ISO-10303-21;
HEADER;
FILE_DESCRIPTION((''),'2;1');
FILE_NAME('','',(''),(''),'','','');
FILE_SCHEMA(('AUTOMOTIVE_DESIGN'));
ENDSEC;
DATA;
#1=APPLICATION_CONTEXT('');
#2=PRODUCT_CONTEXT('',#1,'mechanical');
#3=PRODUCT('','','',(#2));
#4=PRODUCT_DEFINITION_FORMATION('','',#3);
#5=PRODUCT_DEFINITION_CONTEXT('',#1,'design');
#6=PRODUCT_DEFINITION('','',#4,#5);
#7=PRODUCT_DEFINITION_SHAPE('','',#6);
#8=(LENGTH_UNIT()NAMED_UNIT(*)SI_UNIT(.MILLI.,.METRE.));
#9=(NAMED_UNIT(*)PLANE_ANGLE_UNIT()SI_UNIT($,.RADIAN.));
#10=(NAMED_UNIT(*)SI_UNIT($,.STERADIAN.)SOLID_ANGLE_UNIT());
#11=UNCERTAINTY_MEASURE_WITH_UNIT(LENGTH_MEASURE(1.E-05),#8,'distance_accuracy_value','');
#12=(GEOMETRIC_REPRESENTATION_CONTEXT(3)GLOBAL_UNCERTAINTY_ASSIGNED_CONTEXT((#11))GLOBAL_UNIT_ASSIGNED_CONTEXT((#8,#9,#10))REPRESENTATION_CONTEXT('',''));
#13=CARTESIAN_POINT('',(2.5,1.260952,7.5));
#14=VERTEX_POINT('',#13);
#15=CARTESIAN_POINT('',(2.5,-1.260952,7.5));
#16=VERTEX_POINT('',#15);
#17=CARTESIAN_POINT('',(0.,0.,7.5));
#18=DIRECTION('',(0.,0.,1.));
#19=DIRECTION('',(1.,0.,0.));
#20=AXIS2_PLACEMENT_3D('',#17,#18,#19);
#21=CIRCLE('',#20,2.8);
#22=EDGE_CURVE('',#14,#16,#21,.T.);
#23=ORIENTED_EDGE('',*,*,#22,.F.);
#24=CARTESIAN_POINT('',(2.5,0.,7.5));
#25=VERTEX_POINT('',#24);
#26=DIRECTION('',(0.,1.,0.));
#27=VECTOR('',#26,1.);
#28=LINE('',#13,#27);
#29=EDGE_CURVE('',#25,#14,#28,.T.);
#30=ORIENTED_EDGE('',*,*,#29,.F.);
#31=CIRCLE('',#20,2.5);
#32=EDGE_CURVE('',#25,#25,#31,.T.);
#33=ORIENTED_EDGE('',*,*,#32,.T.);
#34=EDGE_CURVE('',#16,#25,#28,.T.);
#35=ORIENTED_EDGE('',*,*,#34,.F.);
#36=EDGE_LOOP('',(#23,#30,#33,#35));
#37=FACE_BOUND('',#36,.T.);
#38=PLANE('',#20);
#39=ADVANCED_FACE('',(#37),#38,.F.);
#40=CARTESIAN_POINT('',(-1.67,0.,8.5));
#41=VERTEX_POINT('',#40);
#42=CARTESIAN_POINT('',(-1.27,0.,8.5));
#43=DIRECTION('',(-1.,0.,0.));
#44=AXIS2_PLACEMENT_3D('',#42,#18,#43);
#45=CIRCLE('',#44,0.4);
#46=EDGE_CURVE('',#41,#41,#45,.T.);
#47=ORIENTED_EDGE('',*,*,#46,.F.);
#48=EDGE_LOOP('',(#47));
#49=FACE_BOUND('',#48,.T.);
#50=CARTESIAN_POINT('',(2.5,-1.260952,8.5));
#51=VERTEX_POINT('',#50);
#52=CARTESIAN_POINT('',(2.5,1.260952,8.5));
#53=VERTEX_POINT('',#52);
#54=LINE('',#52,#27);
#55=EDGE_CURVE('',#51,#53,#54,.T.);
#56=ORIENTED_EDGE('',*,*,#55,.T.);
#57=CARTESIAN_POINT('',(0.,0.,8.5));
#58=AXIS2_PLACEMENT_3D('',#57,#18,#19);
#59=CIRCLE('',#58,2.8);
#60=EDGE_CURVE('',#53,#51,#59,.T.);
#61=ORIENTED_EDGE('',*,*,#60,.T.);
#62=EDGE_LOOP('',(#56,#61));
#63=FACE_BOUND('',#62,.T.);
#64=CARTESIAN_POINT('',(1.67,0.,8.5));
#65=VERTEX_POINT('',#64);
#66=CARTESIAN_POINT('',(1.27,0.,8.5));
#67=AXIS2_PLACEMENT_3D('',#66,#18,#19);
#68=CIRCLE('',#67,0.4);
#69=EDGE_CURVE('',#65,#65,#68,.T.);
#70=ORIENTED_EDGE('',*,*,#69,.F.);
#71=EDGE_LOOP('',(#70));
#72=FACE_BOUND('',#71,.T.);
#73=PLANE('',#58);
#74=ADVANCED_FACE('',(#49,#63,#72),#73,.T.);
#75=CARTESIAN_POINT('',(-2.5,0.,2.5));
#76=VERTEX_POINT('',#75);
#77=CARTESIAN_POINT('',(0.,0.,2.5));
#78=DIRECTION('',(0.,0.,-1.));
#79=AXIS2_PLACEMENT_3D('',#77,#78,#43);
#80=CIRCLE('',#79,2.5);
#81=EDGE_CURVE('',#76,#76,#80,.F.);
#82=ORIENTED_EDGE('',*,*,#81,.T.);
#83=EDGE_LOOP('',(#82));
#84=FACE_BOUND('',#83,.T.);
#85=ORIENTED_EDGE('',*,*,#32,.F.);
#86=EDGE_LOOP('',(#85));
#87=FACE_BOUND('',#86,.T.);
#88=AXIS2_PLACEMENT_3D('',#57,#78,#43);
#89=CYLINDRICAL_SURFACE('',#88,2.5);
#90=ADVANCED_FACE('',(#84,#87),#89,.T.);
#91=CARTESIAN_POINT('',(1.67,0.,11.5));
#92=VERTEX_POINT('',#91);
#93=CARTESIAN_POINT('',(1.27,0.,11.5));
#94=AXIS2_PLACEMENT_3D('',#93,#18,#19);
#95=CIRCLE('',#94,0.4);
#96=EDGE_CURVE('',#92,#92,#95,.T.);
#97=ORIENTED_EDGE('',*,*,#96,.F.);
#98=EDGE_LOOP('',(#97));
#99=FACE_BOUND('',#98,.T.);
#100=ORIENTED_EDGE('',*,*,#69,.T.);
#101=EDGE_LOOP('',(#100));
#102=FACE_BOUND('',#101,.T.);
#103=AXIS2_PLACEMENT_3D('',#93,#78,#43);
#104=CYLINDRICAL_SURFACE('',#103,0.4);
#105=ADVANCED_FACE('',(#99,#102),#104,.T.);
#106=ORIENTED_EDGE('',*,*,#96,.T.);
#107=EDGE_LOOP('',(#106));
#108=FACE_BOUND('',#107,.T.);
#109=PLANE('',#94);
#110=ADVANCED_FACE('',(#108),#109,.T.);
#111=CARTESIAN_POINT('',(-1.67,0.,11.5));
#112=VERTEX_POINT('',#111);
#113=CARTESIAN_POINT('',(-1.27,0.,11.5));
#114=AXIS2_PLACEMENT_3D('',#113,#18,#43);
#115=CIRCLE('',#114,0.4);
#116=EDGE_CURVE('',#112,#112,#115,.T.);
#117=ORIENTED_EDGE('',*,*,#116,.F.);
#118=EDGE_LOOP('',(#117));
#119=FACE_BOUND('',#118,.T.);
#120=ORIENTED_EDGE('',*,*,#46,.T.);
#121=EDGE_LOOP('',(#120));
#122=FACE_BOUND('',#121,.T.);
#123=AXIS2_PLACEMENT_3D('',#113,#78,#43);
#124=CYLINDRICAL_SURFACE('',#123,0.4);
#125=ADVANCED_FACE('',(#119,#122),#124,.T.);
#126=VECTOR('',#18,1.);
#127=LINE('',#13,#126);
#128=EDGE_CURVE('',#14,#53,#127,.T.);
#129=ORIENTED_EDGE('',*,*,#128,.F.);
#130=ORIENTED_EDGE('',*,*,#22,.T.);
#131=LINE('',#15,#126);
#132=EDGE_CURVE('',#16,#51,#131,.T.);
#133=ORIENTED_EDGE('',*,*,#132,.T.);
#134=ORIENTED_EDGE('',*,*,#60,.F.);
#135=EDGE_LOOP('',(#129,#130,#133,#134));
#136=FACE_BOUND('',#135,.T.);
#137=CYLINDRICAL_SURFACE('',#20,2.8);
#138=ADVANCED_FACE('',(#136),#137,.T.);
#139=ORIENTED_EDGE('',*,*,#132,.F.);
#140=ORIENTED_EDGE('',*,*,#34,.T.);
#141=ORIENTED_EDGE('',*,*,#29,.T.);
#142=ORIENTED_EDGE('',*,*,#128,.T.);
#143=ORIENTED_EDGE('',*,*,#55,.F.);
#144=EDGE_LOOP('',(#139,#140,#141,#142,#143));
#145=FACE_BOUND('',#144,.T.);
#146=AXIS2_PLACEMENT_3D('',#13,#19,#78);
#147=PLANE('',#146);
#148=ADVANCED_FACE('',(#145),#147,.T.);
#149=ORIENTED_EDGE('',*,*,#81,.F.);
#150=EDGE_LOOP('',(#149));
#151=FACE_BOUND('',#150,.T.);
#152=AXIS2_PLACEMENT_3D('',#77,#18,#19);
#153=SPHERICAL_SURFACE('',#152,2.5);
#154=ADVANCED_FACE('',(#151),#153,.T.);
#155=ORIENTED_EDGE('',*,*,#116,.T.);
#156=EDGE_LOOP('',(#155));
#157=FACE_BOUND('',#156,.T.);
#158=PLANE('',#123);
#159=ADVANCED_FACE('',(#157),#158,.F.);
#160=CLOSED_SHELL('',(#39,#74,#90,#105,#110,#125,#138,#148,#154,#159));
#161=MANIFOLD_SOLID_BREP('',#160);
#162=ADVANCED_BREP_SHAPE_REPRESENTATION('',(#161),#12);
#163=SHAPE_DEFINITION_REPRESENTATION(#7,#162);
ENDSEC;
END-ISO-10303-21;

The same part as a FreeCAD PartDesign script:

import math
import FreeCAD as App
import Part
import Sketcher


def edges_at(feature, points):
    """Names of the edges that pass closest to the given points."""
    edges = feature.Shape.Edges
    near = lambda p: min(range(len(edges)), key=lambda i: edges[i].distToShape(Part.Vertex(*p))[0])
    return sorted({f"Edge{near(p) + 1}" for p in points})

doc = App.newDocument("Part")
params = doc.addObject("Spreadsheet::Sheet", "Params")
for row, (alias, value) in enumerate([
    ("sketch1_diameter", "5 mm"),
    ("pad1_length", "8.5 mm"),
    ("sketch2_radius", "2.8 mm"),
    ("pad2_length", "1 mm"),
    ("fillet_radius", "2.5 mm"),
    ("sketch3_diameter", "0.8 mm"),
    ("pad3_length", "3 mm"),
], start=1):
    params.set(f"A{row}", alias)
    params.set(f"B{row}", "=" + value)
    params.setAlias(f"B{row}", alias)

body = doc.addObject("PartDesign::Body", "Body")

sketch1 = body.newObject("Sketcher::SketchObject", "Sketch")
sketch1.AttachmentSupport = (doc.getObject("XY_Plane"), [""])
sketch1.MapMode = "FlatFace"
sketch1.addGeometry(Part.Circle(App.Vector(0, 0, 0), App.Vector(0, 0, 1), 2.5), False)
sketch1.addConstraint(Sketcher.Constraint("Coincident", 0, 3, -1, 1))
sketch1.addConstraint(Sketcher.Constraint("Diameter", 0, 5.0))
sketch1.setExpression("Constraints[1]", "Params.sketch1_diameter")
pad1 = body.newObject("PartDesign::Pad", "Pad")
pad1.Profile = sketch1
pad1.setExpression("Length", "Params.pad1_length")

sketch2 = body.newObject("Sketcher::SketchObject", "Sketch001")
sketch2.AttachmentSupport = (doc.getObject("XY_Plane"), [""])
sketch2.MapMode = "FlatFace"
sketch2.AttachmentOffset = App.Placement(App.Vector(0, 0, 8.5), App.Rotation())
sketch2.addGeometry(Part.LineSegment(App.Vector(2.5, -1.3, 0), App.Vector(2.5, 1.3, 0)), False)
sketch2.addGeometry(Part.ArcOfCircle(Part.Circle(App.Vector(0, 0, 0), App.Vector(0, 0, 1), 2.8), math.radians(27), math.radians(333)), False)
sketch2.addConstraint(Sketcher.Constraint("Coincident", 0, 1, 1, 2))
sketch2.addConstraint(Sketcher.Constraint("Coincident", 1, 1, 0, 2))
sketch2.addConstraint(Sketcher.Constraint("Vertical", 0))
sketch2.addConstraint(Sketcher.Constraint("Coincident", 1, 3, -1, 1))
sketch2.addConstraint(Sketcher.Constraint("Radius", 1, 2.8))
sketch2.addConstraint(Sketcher.Constraint("DistanceX", -1, 1, 0, 1, 2.5))
sketch2.setExpression("Constraints[4]", "Params.sketch2_radius")
pad2 = body.newObject("PartDesign::Pad", "Pad001")
pad2.Profile = sketch2
pad2.setExpression("Length", "Params.pad2_length")
pad2.Reversed = True
doc.recompute()

fillet = body.newObject("PartDesign::Fillet", "Fillet")
fillet.Base = (pad2, edges_at(pad2, [(-2.5, 0, 0)]))
fillet.setExpression("Radius", "Params.fillet_radius")

sketch3 = body.newObject("Sketcher::SketchObject", "Sketch002")
sketch3.AttachmentSupport = (doc.getObject("XY_Plane"), [""])
sketch3.MapMode = "FlatFace"
sketch3.AttachmentOffset = App.Placement(App.Vector(0, 0, 8.5), App.Rotation())
sketch3.addGeometry(Part.Circle(App.Vector(1.27, 0, 0), App.Vector(0, 0, 1), 0.4), False)
sketch3.addGeometry(Part.Circle(App.Vector(-1.27, 0, 0), App.Vector(0, 0, 1), 0.4), False)
sketch3.addConstraint(Sketcher.Constraint("Equal", 0, 1))
sketch3.addConstraint(Sketcher.Constraint("Symmetric", 0, 3, 1, 3, -1, 1))
sketch3.addConstraint(Sketcher.Constraint("PointOnObject", 0, 3, -1))
sketch3.addConstraint(Sketcher.Constraint("Diameter", 0, 0.8))
sketch3.addConstraint(Sketcher.Constraint("DistanceX", -1, 1, 0, 3, 1.27))
sketch3.setExpression("Constraints[3]", "Params.sketch3_diameter")
pad3 = body.newObject("PartDesign::Pad", "Pad002")
pad3.Profile = sketch3
pad3.setExpression("Length", "Params.pad3_length")

doc.recompute()
